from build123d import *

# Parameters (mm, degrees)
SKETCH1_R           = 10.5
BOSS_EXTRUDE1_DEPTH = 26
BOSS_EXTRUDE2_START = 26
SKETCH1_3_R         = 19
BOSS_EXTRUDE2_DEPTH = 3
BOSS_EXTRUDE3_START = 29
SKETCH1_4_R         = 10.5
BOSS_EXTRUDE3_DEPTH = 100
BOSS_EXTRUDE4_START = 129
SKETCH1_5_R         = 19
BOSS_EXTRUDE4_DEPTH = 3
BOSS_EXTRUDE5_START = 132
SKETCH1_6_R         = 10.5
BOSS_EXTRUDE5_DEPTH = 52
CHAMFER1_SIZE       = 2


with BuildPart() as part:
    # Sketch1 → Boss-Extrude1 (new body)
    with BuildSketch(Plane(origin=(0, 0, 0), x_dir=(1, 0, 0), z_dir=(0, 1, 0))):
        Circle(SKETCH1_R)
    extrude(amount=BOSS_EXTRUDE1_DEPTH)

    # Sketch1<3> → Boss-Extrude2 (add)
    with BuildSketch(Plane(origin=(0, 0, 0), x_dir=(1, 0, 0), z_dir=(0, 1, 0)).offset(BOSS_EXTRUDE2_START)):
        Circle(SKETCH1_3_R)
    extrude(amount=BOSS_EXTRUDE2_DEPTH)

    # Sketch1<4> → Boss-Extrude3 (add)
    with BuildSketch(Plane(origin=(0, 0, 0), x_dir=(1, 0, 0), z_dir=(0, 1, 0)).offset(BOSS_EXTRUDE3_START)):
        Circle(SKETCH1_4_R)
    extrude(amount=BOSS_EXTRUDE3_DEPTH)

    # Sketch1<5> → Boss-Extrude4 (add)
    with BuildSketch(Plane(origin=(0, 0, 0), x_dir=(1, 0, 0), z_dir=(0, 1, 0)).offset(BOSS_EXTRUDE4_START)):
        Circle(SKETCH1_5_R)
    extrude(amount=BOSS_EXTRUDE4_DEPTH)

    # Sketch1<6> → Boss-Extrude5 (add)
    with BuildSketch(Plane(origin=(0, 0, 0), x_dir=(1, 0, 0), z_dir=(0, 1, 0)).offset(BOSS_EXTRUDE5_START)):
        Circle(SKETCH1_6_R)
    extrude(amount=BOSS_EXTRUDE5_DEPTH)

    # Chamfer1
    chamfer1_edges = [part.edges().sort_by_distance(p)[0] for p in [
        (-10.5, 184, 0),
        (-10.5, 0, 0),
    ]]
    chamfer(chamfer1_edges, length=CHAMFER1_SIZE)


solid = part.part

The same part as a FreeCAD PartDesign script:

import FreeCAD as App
import Part
import Sketcher
Q = App.Units.Quantity


def edges_at(feature, points):
    """Names of the edges that pass closest to the given points."""
    edges = feature.Shape.Edges
    near = lambda p: min(range(len(edges)), key=lambda i: edges[i].distToShape(Part.Vertex(*p))[0])
    return sorted({f"Edge{near(p) + 1}" for p in points})

doc = App.newDocument("Part")
params = doc.addObject("Spreadsheet::Sheet", "Params")
for row, (alias, value) in enumerate([
    ("sketch1_diameter", "21 mm"),
    ("pad1_length", "26 mm"),
    ("sketch2_diameter", "38 mm"),
    ("pad2_length", "3 mm"),
    ("sketch3_diameter", "21 mm"),
    ("pad3_length", "100 mm"),
    ("sketch4_diameter", "38 mm"),
    ("pad4_length", "3 mm"),
    ("sketch5_diameter", "21 mm"),
    ("pad5_length", "52 mm"),
    ("chamfer_size", "2 mm"),
], start=1):
    params.set(f"A{row}", alias)
    params.set(f"B{row}", "=" + value)
    params.setAlias(f"B{row}", alias)

body = doc.addObject("PartDesign::Body", "Body")

sketch1 = body.newObject("Sketcher::SketchObject", "Sketch")
sketch1.AttachmentSupport = (doc.getObject("XZ_Plane"), [""])
sketch1.MapMode = "FlatFace"
sketch1.addGeometry(Part.Circle(App.Vector(0, 0, 0), App.Vector(0, 0, 1), 10.5), False)
sketch1.addConstraint(Sketcher.Constraint("Coincident", 0, 3, -1, 1))
sketch1.addConstraint(Sketcher.Constraint("Diameter", 0, Q("21 mm")))
sketch1.setExpression("Constraints[1]", "Params.sketch1_diameter")
pad1 = body.newObject("PartDesign::Pad", "Pad")
pad1.Profile = sketch1
pad1.setExpression("Length", "Params.pad1_length")
pad1.Reversed = True

sketch2 = body.newObject("Sketcher::SketchObject", "Sketch001")
sketch2.AttachmentSupport = (doc.getObject("XZ_Plane"), [""])
sketch2.MapMode = "FlatFace"
sketch2.AttachmentOffset = App.Placement(App.Vector(0, 0, -26), App.Rotation())
sketch2.addGeometry(Part.Circle(App.Vector(0, 0, 0), App.Vector(0, 0, 1), 19), False)
sketch2.addConstraint(Sketcher.Constraint("Coincident", 0, 3, -1, 1))
sketch2.addConstraint(Sketcher.Constraint("Diameter", 0, Q("38 mm")))
sketch2.setExpression("Constraints[1]", "Params.sketch2_diameter")
pad2 = body.newObject("PartDesign::Pad", "Pad001")
pad2.Profile = sketch2
pad2.setExpression("Length", "Params.pad2_length")
pad2.Reversed = True

sketch3 = body.newObject("Sketcher::SketchObject", "Sketch002")
sketch3.AttachmentSupport = (doc.getObject("XZ_Plane"), [""])
sketch3.MapMode = "FlatFace"
sketch3.AttachmentOffset = App.Placement(App.Vector(0, 0, -29), App.Rotation())
sketch3.addGeometry(Part.Circle(App.Vector(0, 0, 0), App.Vector(0, 0, 1), 10.5), False)
sketch3.addConstraint(Sketcher.Constraint("Coincident", 0, 3, -1, 1))
sketch3.addConstraint(Sketcher.Constraint("Diameter", 0, Q("21 mm")))
sketch3.setExpression("Constraints[1]", "Params.sketch3_diameter")
pad3 = body.newObject("PartDesign::Pad", "Pad002")
pad3.Profile = sketch3
pad3.setExpression("Length", "Params.pad3_length")
pad3.Reversed = True

sketch4 = body.newObject("Sketcher::SketchObject", "Sketch003")
sketch4.AttachmentSupport = (doc.getObject("XZ_Plane"), [""])
sketch4.MapMode = "FlatFace"
sketch4.AttachmentOffset = App.Placement(App.Vector(0, 0, -129), App.Rotation())
sketch4.addGeometry(Part.Circle(App.Vector(0, 0, 0), App.Vector(0, 0, 1), 19), False)
sketch4.addConstraint(Sketcher.Constraint("Coincident", 0, 3, -1, 1))
sketch4.addConstraint(Sketcher.Constraint("Diameter", 0, Q("38 mm")))
sketch4.setExpression("Constraints[1]", "Params.sketch4_diameter")
pad4 = body.newObject("PartDesign::Pad", "Pad003")
pad4.Profile = sketch4
pad4.setExpression("Length", "Params.pad4_length")
pad4.Reversed = True

sketch5 = body.newObject("Sketcher::SketchObject", "Sketch004")
sketch5.AttachmentSupport = (doc.getObject("XZ_Plane"), [""])
sketch5.MapMode = "FlatFace"
sketch5.AttachmentOffset = App.Placement(App.Vector(0, 0, -132), App.Rotation())
sketch5.addGeometry(Part.Circle(App.Vector(0, 0, 0), App.Vector(0, 0, 1), 10.5), False)
sketch5.addConstraint(Sketcher.Constraint("Coincident", 0, 3, -1, 1))
sketch5.addConstraint(Sketcher.Constraint("Diameter", 0, Q("21 mm")))
sketch5.setExpression("Constraints[1]", "Params.sketch5_diameter")
pad5 = body.newObject("PartDesign::Pad", "Pad004")
pad5.Profile = sketch5
pad5.setExpression("Length", "Params.pad5_length")
pad5.Reversed = True
doc.recompute()

chamfer = body.newObject("PartDesign::Chamfer", "Chamfer")
chamfer.Base = (pad5, edges_at(pad5, [(-10.5, 184, 0), (-10.5, 0, 0)]))
chamfer.setExpression("Size", "Params.chamfer_size")

doc.recompute()
